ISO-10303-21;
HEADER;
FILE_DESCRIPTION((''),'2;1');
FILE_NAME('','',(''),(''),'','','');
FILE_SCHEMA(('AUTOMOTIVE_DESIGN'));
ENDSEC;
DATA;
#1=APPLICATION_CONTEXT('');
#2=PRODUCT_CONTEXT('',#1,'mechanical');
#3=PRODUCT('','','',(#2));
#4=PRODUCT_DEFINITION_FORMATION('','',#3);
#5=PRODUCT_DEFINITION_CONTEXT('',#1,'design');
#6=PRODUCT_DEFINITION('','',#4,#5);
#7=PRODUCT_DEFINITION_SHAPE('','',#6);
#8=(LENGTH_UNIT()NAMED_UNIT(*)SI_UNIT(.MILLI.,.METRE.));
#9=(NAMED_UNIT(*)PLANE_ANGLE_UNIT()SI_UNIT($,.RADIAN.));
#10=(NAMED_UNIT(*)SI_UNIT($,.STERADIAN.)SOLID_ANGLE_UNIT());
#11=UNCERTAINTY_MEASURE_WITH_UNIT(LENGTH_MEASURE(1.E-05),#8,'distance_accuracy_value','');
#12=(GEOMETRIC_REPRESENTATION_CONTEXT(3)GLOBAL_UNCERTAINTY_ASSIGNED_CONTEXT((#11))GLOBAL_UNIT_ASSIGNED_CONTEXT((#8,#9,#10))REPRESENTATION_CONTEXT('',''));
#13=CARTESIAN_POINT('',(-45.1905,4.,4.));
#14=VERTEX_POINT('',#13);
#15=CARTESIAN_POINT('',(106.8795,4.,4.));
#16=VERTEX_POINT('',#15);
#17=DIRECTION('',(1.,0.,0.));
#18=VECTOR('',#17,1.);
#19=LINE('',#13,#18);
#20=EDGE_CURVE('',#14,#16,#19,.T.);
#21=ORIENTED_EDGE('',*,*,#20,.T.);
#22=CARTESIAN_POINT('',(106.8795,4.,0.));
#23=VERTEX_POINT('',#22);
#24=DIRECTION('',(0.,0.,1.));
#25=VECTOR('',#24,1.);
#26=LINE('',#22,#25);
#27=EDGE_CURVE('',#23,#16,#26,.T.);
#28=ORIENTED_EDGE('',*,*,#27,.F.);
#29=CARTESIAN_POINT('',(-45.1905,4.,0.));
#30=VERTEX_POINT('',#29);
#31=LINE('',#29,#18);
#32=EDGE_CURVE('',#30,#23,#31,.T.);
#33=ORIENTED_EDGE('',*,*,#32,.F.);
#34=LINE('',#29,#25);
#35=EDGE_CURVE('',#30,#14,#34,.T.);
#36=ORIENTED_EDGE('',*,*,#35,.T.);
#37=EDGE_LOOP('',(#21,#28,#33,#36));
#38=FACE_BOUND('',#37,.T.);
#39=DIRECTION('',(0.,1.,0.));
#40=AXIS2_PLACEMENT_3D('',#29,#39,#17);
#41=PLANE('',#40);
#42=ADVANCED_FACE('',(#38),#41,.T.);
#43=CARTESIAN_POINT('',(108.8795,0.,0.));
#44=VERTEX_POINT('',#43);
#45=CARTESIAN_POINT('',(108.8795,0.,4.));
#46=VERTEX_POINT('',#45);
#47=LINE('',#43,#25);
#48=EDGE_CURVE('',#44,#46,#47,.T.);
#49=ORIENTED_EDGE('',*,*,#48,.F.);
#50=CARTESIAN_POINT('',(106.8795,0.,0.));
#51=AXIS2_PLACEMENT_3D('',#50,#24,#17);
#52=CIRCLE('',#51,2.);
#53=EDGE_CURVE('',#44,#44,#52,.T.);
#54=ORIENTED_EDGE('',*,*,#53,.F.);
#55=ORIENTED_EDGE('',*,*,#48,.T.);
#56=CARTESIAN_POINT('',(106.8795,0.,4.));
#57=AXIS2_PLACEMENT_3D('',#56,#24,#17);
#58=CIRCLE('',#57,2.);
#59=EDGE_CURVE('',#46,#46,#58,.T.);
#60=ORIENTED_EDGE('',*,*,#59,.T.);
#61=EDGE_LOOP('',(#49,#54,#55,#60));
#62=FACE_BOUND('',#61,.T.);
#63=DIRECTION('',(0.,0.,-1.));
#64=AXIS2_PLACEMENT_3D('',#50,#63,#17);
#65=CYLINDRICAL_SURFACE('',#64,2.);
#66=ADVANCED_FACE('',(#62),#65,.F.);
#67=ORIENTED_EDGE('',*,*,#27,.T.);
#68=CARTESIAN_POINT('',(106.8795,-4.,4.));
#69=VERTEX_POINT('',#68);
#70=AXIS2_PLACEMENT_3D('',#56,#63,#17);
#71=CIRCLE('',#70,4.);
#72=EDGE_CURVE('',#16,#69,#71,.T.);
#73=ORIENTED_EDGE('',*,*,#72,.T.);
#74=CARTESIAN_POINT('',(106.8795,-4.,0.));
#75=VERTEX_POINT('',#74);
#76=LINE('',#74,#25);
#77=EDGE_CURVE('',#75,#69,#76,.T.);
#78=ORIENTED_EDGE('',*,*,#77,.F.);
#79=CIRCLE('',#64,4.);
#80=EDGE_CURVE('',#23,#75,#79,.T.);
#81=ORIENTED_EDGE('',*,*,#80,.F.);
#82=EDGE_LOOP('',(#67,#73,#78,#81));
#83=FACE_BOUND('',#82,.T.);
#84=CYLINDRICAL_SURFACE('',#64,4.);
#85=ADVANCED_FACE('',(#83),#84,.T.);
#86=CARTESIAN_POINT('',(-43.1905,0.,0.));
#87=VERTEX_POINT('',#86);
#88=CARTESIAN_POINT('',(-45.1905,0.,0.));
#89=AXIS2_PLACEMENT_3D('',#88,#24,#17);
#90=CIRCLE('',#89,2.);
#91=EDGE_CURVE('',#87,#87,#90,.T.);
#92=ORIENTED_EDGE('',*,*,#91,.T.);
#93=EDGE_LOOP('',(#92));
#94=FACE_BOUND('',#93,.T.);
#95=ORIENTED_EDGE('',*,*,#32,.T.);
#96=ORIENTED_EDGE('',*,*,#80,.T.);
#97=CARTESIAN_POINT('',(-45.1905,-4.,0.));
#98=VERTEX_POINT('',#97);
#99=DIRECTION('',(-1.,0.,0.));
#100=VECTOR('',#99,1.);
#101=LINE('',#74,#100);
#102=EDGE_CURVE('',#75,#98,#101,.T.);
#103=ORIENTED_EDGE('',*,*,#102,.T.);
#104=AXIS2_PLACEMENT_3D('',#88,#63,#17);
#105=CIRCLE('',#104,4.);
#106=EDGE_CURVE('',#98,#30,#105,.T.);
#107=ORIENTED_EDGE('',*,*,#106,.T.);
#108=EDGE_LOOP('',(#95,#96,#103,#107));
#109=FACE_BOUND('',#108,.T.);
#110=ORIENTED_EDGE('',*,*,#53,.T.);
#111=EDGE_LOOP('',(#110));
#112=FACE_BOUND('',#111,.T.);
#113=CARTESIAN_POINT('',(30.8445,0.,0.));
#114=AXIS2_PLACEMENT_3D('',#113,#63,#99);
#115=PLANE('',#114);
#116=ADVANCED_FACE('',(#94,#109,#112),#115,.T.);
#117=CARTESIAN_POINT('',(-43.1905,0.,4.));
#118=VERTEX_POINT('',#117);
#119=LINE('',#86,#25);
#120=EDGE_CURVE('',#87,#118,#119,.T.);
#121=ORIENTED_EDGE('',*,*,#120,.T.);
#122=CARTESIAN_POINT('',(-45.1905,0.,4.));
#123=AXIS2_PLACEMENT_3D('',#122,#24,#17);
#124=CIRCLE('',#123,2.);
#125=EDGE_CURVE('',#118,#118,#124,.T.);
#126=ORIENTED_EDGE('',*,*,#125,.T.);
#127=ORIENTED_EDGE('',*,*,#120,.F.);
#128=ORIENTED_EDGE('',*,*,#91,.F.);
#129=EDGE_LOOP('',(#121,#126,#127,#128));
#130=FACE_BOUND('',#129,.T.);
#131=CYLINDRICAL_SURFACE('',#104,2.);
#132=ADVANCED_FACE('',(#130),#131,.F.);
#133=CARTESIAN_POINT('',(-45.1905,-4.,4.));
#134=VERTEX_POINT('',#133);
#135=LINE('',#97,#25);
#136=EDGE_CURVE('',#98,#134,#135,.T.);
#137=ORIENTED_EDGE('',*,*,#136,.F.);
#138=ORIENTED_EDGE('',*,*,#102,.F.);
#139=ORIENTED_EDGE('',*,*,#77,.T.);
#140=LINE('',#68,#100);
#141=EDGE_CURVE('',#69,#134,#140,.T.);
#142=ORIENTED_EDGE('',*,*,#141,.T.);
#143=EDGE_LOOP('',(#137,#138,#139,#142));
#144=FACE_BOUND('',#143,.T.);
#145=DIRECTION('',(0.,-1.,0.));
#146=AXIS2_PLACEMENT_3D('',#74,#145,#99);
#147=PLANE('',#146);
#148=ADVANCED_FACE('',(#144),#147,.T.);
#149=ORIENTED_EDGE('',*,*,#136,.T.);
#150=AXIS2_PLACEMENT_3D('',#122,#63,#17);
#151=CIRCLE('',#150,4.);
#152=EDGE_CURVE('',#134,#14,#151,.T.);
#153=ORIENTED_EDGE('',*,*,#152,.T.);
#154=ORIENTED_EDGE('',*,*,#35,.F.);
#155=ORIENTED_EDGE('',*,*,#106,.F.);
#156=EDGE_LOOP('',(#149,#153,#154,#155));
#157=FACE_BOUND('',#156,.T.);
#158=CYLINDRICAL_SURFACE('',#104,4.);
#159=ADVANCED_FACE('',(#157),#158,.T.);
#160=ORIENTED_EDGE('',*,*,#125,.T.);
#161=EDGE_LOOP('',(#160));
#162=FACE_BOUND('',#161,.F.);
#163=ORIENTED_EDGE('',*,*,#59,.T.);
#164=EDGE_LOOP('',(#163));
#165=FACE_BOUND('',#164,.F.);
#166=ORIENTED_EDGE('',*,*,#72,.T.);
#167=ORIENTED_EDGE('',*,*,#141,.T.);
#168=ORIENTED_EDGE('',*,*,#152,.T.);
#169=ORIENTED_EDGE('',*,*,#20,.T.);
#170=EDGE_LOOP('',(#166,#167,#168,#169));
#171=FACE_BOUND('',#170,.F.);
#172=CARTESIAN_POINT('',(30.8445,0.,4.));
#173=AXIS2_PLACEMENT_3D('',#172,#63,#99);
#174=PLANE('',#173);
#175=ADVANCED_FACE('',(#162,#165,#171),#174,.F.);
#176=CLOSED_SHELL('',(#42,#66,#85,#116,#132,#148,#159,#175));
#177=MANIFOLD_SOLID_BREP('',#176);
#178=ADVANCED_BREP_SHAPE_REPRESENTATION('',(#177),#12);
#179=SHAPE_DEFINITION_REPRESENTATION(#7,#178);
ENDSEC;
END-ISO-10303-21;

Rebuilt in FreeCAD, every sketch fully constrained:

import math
import FreeCAD as App
import Part
import Sketcher
from FreeCAD import Vector
Q = App.Units.Quantity

doc = App.newDocument("Part")
body = doc.addObject("PartDesign::Body", "Body")

# Sketch on XY plane
sketch1 = body.newObject("Sketcher::SketchObject", "Sketch")
sketch1.AttachmentSupport = (doc.getObject("XY_Plane"), [""])
sketch1.MapMode = "FlatFace"
sketch1.addGeometry([
    Part.LineSegment(Vector(106.9, 4, 0), Vector(-45.2, 4, 0)),  # 0
    Part.ArcOfCircle(Part.Circle(Vector(-45.2, 0, 0), Vector(0, 0, 1), 4), math.radians(90), math.radians(270)),  # 1
    Part.LineSegment(Vector(-45.2, -4, 0), Vector(106.9, -4, 0)),  # 2
    Part.ArcOfCircle(Part.Circle(Vector(106.9, 0, 0), Vector(0, 0, 1), 4), math.radians(-90), math.radians(90)),  # 3
    Part.Circle(Vector(-45.2, 0, 0), Vector(0, 0, 1), 2),  # 4
    Part.Circle(Vector(106.9, 0, 0), Vector(0, 0, 1), 2),  # 5
], False)
sketch1.addConstraint([
    Sketcher.Constraint("Tangent", 0, 2, 1, 1),
    Sketcher.Constraint("Tangent", 1, 2, 2, 1),
    Sketcher.Constraint("Tangent", 2, 2, 3, 1),
    Sketcher.Constraint("Tangent", 3, 2, 0, 1),
    Sketcher.Constraint("Horizontal", 0),
    Sketcher.Constraint("Horizontal", 2),
    Sketcher.Constraint("Coincident", 4, 3, 1, 3),
    Sketcher.Constraint("Coincident", 5, 3, 3, 3),
    Sketcher.Constraint("Equal", 4, 5),
    Sketcher.Constraint("PointOnObject", 1, 3, -1),
    Sketcher.Constraint("Diameter", 4, Q("4 mm")),
    Sketcher.Constraint("Radius", 1, Q("4 mm")),
    Sketcher.Constraint("DistanceX", 0, 2, 0, 1, Q("152.07 mm")),
    Sketcher.Constraint("DistanceX", 1, 3, -1, 1, Q("45.1905 mm")),
])
pad1 = body.newObject("PartDesign::Pad", "Pad")
pad1.Profile = sketch1
pad1.Length = 4

doc.recompute()
